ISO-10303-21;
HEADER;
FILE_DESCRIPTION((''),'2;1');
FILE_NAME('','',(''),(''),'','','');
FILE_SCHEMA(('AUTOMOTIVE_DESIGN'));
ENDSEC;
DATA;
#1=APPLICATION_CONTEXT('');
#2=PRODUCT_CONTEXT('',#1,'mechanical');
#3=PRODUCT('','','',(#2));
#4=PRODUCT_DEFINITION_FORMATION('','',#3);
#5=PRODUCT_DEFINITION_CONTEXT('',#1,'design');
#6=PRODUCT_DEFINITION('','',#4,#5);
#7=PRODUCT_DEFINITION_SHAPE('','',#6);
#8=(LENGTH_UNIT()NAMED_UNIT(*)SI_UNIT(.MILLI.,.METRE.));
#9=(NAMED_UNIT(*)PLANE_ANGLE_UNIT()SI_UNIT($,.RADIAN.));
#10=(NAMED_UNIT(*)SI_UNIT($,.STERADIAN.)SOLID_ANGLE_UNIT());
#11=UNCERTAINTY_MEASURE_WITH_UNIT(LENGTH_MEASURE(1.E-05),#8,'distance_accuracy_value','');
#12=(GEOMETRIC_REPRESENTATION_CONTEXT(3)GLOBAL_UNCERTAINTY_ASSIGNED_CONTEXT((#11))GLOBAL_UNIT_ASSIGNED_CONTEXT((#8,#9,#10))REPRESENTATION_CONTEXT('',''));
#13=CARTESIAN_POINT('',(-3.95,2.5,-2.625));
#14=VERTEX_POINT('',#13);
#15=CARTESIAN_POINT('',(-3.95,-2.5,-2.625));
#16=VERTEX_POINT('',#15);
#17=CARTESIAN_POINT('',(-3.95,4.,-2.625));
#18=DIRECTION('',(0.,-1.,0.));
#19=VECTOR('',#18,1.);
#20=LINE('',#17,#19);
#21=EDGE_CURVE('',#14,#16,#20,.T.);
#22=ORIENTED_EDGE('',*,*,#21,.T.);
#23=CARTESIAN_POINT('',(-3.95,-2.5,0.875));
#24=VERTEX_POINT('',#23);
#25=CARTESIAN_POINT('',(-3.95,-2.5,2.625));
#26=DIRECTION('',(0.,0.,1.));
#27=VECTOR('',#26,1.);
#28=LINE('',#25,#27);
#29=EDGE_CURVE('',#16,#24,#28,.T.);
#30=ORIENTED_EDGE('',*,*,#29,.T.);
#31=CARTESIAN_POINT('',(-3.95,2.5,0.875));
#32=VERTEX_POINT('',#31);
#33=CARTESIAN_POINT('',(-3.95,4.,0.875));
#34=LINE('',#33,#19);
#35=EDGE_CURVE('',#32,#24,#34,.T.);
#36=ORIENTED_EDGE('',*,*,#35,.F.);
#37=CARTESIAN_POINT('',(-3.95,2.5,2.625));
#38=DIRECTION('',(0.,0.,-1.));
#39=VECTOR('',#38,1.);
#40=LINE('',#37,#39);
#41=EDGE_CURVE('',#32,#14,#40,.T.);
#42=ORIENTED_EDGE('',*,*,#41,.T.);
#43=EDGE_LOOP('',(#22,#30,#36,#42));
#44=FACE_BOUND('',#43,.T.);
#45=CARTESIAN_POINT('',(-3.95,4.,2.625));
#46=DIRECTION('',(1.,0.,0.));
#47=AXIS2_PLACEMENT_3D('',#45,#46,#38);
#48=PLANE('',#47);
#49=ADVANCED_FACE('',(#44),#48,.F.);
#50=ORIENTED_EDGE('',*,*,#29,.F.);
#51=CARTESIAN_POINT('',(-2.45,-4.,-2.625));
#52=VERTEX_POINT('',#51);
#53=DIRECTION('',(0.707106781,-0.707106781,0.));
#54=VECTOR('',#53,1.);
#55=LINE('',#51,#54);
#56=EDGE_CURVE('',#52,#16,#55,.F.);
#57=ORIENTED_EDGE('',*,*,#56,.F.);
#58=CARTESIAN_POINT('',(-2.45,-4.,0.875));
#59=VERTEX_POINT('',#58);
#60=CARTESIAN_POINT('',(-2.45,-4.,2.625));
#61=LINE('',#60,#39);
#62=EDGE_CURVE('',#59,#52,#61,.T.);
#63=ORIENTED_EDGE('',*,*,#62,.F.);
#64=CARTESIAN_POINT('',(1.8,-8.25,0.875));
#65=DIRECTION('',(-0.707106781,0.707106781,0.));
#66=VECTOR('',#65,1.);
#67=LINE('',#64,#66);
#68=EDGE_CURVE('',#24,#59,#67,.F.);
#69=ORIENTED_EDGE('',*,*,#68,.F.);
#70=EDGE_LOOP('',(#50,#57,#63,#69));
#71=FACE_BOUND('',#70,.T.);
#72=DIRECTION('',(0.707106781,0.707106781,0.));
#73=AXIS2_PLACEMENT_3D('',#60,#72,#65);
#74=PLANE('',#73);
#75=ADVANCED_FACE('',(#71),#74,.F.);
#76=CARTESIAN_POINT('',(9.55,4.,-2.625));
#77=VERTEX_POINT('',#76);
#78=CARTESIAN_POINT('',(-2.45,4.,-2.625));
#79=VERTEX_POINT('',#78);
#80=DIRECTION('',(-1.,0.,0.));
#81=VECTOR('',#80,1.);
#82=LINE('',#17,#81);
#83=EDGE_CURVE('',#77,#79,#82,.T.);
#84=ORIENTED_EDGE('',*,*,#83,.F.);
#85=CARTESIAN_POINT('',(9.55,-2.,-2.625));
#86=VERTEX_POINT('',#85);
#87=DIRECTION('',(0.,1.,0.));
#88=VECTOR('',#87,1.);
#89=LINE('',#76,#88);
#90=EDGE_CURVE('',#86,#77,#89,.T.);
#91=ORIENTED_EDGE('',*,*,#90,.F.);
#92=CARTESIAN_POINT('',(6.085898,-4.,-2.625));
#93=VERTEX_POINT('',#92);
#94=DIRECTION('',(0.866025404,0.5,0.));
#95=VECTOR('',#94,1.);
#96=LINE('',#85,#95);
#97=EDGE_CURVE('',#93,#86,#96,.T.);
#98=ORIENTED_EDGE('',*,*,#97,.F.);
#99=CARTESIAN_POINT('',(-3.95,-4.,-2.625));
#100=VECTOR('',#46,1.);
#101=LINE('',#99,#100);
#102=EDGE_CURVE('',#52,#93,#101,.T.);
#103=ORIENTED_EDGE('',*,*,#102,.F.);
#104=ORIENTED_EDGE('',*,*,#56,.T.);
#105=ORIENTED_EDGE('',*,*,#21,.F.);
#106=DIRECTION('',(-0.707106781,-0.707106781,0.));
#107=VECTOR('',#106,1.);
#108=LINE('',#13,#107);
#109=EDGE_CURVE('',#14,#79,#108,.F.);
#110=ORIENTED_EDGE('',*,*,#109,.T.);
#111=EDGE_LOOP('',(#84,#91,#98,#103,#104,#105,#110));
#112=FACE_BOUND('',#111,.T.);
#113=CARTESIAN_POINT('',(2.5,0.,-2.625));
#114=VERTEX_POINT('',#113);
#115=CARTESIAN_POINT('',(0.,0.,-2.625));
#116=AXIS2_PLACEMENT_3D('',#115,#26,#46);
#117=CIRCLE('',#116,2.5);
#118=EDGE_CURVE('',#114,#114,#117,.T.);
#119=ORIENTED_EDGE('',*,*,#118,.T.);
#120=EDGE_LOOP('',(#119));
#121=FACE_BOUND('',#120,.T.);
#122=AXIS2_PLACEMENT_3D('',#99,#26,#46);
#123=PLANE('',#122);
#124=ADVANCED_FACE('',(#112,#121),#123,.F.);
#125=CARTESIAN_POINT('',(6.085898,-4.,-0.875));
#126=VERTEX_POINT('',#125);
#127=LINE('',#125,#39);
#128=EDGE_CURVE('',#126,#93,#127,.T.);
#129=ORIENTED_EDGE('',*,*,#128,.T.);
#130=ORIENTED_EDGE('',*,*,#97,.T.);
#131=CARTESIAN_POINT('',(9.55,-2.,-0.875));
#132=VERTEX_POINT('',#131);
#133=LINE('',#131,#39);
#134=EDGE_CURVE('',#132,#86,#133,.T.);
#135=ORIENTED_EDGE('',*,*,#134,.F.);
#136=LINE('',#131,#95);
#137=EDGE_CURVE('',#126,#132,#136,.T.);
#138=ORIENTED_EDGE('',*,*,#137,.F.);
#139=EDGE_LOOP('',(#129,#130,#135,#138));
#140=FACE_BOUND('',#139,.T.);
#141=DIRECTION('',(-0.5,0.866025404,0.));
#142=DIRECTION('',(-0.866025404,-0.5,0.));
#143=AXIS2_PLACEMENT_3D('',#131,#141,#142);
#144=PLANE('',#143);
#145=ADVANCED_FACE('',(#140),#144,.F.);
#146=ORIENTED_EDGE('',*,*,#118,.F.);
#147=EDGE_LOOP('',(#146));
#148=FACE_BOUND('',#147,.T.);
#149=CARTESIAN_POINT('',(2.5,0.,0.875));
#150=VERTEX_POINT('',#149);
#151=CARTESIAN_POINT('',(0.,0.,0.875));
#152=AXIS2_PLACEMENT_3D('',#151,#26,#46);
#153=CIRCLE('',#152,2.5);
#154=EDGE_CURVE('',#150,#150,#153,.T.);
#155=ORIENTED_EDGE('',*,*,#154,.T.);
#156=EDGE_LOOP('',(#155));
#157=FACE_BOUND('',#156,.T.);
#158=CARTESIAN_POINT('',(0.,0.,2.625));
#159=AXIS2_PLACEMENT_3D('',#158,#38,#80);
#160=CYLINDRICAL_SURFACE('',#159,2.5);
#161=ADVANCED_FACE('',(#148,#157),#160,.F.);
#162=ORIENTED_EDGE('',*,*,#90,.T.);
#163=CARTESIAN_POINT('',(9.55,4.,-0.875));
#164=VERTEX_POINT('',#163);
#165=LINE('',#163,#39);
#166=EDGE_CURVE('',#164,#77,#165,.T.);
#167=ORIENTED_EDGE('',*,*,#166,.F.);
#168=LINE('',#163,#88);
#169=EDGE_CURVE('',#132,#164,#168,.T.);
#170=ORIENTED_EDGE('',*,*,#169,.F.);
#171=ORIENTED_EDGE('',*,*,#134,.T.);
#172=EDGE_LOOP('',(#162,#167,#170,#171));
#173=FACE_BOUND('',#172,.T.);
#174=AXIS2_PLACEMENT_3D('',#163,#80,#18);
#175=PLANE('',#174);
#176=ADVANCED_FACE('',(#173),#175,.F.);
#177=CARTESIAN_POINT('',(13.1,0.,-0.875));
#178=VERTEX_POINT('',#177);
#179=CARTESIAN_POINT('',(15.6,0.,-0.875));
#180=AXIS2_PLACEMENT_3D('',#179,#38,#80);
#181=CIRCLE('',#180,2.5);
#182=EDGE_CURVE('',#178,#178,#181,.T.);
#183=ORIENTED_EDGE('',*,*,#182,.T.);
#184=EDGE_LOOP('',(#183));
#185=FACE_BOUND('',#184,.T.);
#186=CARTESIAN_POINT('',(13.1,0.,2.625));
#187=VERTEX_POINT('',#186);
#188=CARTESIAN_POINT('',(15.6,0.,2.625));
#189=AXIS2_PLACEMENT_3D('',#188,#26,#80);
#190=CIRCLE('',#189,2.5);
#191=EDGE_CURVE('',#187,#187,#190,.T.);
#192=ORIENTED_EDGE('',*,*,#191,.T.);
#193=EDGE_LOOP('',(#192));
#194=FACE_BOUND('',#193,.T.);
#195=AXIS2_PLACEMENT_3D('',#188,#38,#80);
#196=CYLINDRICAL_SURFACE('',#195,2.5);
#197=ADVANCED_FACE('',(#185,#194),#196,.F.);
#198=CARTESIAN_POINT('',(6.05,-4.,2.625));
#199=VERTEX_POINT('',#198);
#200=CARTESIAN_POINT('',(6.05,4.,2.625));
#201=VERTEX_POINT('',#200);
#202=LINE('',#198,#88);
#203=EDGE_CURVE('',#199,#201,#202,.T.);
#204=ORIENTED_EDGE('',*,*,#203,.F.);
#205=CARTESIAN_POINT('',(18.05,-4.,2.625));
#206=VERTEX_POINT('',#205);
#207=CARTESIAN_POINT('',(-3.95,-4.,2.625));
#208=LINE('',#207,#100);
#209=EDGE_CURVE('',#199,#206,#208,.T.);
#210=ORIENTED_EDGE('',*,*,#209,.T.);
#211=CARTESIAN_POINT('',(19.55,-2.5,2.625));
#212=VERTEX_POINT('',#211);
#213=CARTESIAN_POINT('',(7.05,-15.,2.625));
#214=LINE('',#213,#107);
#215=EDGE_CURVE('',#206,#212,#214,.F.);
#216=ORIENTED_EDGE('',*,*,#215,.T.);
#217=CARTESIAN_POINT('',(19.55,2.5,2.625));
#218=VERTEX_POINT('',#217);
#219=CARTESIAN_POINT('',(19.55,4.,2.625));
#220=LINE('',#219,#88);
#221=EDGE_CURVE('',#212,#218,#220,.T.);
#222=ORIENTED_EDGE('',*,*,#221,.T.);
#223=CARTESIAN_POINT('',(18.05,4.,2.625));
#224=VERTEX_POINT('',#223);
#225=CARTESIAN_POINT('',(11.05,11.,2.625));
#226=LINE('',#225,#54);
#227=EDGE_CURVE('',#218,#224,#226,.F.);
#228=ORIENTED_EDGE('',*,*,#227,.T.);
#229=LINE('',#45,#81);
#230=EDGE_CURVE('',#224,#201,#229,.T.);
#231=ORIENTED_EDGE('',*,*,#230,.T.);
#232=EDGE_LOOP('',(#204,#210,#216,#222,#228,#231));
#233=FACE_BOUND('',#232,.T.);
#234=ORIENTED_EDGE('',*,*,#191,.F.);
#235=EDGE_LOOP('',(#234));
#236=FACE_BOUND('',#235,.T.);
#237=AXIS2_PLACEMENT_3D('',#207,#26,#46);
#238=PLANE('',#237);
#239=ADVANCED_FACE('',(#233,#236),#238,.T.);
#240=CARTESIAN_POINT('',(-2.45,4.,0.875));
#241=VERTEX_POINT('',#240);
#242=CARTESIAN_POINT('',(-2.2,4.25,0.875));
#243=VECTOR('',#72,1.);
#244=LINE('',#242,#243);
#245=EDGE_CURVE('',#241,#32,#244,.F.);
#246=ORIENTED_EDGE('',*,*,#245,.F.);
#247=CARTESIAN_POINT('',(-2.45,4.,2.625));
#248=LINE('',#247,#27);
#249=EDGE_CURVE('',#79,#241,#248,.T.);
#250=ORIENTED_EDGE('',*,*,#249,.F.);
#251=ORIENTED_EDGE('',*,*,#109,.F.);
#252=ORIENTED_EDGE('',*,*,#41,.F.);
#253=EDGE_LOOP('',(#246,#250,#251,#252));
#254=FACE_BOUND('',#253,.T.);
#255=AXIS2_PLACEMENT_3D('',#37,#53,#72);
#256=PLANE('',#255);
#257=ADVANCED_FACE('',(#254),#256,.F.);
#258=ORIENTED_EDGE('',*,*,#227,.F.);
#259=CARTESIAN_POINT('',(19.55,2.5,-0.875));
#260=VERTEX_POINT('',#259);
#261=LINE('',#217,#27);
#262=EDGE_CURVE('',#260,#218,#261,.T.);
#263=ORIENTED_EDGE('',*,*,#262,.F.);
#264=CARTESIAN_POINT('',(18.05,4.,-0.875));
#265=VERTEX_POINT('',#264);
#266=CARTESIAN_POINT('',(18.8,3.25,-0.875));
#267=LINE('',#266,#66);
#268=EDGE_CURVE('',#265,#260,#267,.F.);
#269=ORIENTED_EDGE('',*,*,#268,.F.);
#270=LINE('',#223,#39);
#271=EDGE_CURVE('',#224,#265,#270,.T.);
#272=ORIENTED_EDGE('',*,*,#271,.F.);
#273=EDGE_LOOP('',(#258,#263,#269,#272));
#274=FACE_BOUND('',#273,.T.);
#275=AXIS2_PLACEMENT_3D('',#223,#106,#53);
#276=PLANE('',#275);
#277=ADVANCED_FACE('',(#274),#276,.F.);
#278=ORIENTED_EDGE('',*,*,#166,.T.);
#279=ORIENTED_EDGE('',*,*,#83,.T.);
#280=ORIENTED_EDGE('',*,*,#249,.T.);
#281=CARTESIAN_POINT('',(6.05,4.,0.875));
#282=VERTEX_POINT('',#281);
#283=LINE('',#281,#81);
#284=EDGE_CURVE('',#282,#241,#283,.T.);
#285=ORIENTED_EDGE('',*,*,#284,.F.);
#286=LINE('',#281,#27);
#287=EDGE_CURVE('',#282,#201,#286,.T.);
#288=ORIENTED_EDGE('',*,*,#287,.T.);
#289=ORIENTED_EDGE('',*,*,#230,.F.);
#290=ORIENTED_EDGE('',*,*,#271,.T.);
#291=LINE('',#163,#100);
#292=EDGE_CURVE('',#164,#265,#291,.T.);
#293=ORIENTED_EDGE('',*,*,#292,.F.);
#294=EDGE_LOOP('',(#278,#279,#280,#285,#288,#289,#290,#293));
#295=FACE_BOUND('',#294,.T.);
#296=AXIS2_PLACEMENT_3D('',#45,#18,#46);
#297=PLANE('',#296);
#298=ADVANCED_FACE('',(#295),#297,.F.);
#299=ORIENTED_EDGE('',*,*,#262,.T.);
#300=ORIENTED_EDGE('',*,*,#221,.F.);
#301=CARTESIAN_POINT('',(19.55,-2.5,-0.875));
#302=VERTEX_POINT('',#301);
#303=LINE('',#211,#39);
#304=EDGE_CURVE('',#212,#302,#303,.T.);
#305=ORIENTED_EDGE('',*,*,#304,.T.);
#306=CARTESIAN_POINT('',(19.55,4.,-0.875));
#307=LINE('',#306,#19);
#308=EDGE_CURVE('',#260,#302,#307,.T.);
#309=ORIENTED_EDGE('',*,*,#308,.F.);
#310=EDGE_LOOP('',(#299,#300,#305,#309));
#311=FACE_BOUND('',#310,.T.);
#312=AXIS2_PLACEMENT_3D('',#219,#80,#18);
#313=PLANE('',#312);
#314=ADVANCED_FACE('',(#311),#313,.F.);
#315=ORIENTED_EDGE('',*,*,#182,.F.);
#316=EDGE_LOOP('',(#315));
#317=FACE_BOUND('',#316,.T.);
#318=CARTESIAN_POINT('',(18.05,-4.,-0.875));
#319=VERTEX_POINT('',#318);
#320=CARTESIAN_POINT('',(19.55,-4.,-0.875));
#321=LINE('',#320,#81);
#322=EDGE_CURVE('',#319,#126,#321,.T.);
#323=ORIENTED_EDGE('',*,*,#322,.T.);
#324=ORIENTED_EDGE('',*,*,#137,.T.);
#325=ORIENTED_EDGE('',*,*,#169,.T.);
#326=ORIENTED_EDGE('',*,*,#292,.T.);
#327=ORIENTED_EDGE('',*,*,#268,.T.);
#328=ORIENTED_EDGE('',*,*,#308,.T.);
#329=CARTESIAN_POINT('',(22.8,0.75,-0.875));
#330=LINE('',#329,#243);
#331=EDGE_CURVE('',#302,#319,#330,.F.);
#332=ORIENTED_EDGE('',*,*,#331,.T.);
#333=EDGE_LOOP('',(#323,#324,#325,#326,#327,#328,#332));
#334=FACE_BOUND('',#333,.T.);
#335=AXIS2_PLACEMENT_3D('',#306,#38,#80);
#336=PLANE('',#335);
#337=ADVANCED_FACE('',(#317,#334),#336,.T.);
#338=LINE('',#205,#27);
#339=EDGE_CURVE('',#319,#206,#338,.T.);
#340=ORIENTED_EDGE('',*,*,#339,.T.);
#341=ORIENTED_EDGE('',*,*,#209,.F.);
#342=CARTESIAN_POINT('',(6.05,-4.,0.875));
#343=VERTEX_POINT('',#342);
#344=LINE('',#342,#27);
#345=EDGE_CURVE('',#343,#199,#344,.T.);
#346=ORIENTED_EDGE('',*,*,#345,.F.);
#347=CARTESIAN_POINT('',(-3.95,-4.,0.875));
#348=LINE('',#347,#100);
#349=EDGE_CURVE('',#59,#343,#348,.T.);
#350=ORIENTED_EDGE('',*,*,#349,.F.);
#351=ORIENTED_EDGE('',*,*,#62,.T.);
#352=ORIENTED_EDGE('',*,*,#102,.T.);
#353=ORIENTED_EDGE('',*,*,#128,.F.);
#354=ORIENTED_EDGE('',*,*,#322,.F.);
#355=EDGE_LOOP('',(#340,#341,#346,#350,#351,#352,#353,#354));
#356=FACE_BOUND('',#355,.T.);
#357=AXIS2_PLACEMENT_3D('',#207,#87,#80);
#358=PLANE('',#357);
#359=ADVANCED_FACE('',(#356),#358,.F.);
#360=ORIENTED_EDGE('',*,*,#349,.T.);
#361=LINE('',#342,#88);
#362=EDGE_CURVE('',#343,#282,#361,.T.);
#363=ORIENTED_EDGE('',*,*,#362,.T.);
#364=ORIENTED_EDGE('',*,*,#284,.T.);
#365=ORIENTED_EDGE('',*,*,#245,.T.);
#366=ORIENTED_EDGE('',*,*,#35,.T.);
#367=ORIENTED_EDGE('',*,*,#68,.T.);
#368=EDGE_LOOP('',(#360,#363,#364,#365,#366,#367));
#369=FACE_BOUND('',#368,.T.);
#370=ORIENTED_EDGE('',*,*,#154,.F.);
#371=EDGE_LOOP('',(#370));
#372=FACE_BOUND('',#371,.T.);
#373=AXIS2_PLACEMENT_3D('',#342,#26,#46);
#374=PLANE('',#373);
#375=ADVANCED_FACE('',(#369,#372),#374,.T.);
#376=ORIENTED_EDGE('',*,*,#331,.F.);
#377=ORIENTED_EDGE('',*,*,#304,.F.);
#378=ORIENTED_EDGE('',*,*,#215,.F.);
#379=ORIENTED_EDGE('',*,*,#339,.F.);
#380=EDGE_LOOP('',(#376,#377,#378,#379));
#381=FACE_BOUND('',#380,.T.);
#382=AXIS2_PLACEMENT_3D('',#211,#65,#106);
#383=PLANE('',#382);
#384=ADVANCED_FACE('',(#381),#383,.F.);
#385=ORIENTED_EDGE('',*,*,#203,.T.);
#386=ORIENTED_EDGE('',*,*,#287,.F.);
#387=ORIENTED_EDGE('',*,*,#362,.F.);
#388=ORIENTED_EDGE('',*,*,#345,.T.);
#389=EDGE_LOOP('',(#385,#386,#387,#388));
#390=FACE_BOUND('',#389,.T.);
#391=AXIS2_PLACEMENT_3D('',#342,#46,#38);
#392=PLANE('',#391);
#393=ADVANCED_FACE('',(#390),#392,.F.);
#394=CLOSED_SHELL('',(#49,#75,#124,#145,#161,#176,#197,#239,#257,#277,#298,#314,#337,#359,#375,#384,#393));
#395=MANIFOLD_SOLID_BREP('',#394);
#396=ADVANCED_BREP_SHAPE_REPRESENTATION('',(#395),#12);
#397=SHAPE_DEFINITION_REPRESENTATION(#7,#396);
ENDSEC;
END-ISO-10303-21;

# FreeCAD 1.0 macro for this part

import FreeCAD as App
import Part
import Sketcher
from FreeCAD import Vector
Q = App.Units.Quantity


def edges_at(feature, points):
    """Names of the edges that pass closest to the given points."""
    edges = feature.Shape.Edges
    near = lambda p: min(range(len(edges)), key=lambda i: edges[i].distToShape(Part.Vertex(*p))[0])
    return sorted({f"Edge{near(p) + 1}" for p in points})


def add_polygon(sketch, points):
    """Adds a closed chain of lines whose ends are joined by coincident constraints."""
    first, n = sketch.GeometryCount, len(points)
    for a, b in zip(points, points[1:] + points[:1]):
        sketch.addGeometry(Part.LineSegment(App.Vector(*a, 0), App.Vector(*b, 0)), False)
    for i in range(n):
        sketch.addConstraint(Sketcher.Constraint("Coincident", first + i, 2, first + (i + 1) % n, 1))

doc = App.newDocument("Part")
body = doc.addObject("PartDesign::Body", "Body")

sketch1 = doc.addObject("Sketcher::SketchObject", "Sketch")
body.addObject(sketch1)
sketch1.AttachmentSupport = (doc.XY_Plane, [""])
sketch1.MapMode = "FlatFace"
add_polygon(sketch1, [(-3.95, 4), (-3.95, -4), (19.55, -4), (19.55, 4)])
sketch1.addGeometry(Part.Circle(Vector(0, 0, 0), Vector(0, 0, 1), 2.5), False)
sketch1.addGeometry(Part.Circle(Vector(15.6, 0, 0), Vector(0, 0, 1), 2.5), False)
sketch1.addConstraint([
    Sketcher.Constraint("Vertical", 0),
    Sketcher.Constraint("Horizontal", 1),
    Sketcher.Constraint("Vertical", 2),
    Sketcher.Constraint("Horizontal", 3),
    Sketcher.Constraint("Coincident", 4, 3, -1, 1),
    Sketcher.Constraint("Equal", 4, 5),
    Sketcher.Constraint("PointOnObject", 5, 3, -1),
    Sketcher.Constraint("Diameter", 4, 5.0),
    Sketcher.Constraint("DistanceY", 0, 2, 0, 1, 8.0),
    Sketcher.Constraint("DistanceX", 1, 1, 1, 2, 23.5),
    Sketcher.Constraint("DistanceY", 0, 2, -1, 1, 4.0),
    Sketcher.Constraint("DistanceX", -1, 1, 5, 3, 15.6),
    Sketcher.Constraint("DistanceX", 0, 2, -1, 1, 3.95),
])
pad1 = doc.addObject("PartDesign::Pad", "Pad")
body.addObject(pad1)
pad1.Profile = sketch1
pad1.Length = 5.25
pad1.Midplane = True

sketch2 = doc.addObject("Sketcher::SketchObject", "Sketch001")
body.addObject(sketch2)
sketch2.AttachmentSupport = (doc.XY_Plane, [""])
sketch2.MapMode = "FlatFace"
sketch2.AttachmentOffset = App.Placement(Vector(0, 0, 2.625), App.Rotation())
add_polygon(sketch2, [(-3.95, 4), (-3.95, -4), (6.05, -4), (6.05, 4)])
sketch2.addConstraint([
    Sketcher.Constraint("Vertical", 0),
    Sketcher.Constraint("Horizontal", 1),
    Sketcher.Constraint("Vertical", 2),
    Sketcher.Constraint("Horizontal", 3),
    Sketcher.Constraint("DistanceX", 1, 1, 1, 2, 10.0),
    Sketcher.Constraint("DistanceY", 0, 2, 0, 1, 8.0),
    Sketcher.Constraint("DistanceY", 0, 2, -1, 1, 4.0),
    Sketcher.Constraint("DistanceX", 0, 2, -1, 1, 3.95),
])
pocket1 = doc.addObject("PartDesign::Pocket", "Pocket")
body.addObject(pocket1)
pocket1.Profile = sketch2
pocket1.Length = 1.75

sketch3 = doc.addObject("Sketcher::SketchObject", "Sketch002")
body.addObject(sketch3)
sketch3.AttachmentSupport = (doc.XY_Plane, [""])
sketch3.MapMode = "FlatFace"
sketch3.AttachmentOffset = App.Placement(Vector(0, 0, -2.625), App.Rotation())
add_polygon(sketch3, [(9.55, -2), (9.55, 4), (19.55, 4), (19.55, -4), (6.085898, -4)])
sketch3.addConstraint([
    Sketcher.Constraint("Vertical", 0),
    Sketcher.Constraint("Horizontal", 1),
    Sketcher.Constraint("Vertical", 2),
    Sketcher.Constraint("Horizontal", 3),
    Sketcher.Constraint("DistanceX", 1, 1, 1, 2, 10.0),
    Sketcher.Constraint("DistanceY", 0, 1, 0, 2, 6.0),
    Sketcher.Constraint("DistanceY", 2, 2, 2, 1, 8.0),
    Sketcher.Constraint("Angle", 4, Q("30 deg")),
    Sketcher.Constraint("DistanceY", -1, 1, 0, 2, 4.0),
    Sketcher.Constraint("DistanceX", -1, 1, 0, 2, 9.55),
])
pocket2 = doc.addObject("PartDesign::Pocket", "Pocket001")
body.addObject(pocket2)
pocket2.Profile = sketch3
pocket2.Length = 1.75
pocket2.Reversed = True
doc.recompute()

chamfer = doc.addObject("PartDesign::Chamfer", "Chamfer")
body.addObject(chamfer)
chamfer.Base = (pocket2, edges_at(pocket2, [
    (-3.95, 4, -0.875),
    (19.55, 4, 0.875),
    (-3.95, -4, -0.875),
    (19.55, -4, 0.875),
]))
chamfer.Size = 1.5

doc.recompute()
